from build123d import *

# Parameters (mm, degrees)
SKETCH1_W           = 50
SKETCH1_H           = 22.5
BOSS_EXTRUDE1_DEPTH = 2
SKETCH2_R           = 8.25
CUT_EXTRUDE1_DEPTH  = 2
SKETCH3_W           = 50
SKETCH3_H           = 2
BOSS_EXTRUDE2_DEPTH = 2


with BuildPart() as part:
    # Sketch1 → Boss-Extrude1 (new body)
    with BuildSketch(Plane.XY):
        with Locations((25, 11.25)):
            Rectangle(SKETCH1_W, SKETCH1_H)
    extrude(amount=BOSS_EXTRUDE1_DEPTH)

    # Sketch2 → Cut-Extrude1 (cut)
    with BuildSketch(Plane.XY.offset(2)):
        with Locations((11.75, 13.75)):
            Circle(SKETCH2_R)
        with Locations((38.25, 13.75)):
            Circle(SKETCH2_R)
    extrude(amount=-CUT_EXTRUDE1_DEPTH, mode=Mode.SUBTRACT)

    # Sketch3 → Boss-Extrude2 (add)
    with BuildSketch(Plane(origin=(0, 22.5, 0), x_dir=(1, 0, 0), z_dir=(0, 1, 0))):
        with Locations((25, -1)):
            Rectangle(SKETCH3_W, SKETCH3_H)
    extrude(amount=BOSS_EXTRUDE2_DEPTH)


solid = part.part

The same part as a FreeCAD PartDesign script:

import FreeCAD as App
import Part
import Sketcher
from FreeCAD import Vector


def add_polygon(sketch, points):
    """Adds a closed chain of lines whose ends are joined by coincident constraints."""
    first, n = sketch.GeometryCount, len(points)
    for a, b in zip(points, points[1:] + points[:1]):
        sketch.addGeometry(Part.LineSegment(App.Vector(*a, 0), App.Vector(*b, 0)), False)
    for i in range(n):
        sketch.addConstraint(Sketcher.Constraint("Coincident", first + i, 2, first + (i + 1) % n, 1))

doc = App.newDocument("Part")
body = doc.addObject("PartDesign::Body", "Body")

# Sketch on XY plane
sketch1 = body.newObject("Sketcher::SketchObject", "Sketch")
sketch1.AttachmentSupport = (doc.getObject("XY_Plane"), [""])
sketch1.MapMode = "FlatFace"
add_polygon(sketch1, [(0, 22), (0, 0), (50, 0), (50, 22)])  # lines 0-3
sketch1.addConstraint([
    Sketcher.Constraint("Vertical", 0),
    Sketcher.Constraint("Horizontal", 1),
    Sketcher.Constraint("Vertical", 2),
    Sketcher.Constraint("Horizontal", 3),
    Sketcher.Constraint("Coincident", 0, 2, -1, 1),
    Sketcher.Constraint("DistanceX", 1, 1, 1, 2, 50.0),
    Sketcher.Constraint("DistanceY", 0, 2, 0, 1, 22.5),
])
pad1 = body.newObject("PartDesign::Pad", "Pad")
pad1.Profile = sketch1
pad1.Length = 2

# Sketch on XY plane
sketch2 = body.newObject("Sketcher::SketchObject", "Sketch001")
sketch2.AttachmentSupport = (doc.getObject("XY_Plane"), [""])
sketch2.MapMode = "FlatFace"
sketch2.AttachmentOffset = App.Placement(Vector(0, 0, 2), App.Rotation())
sketch2.addGeometry([
    Part.Circle(Vector(12, 14, 0), Vector(0, 0, 1), 8),
    Part.Circle(Vector(38, 14, 0), Vector(0, 0, 1), 8),
], False)
sketch2.addConstraint([
    Sketcher.Constraint("Equal", 0, 1),
    Sketcher.Constraint("Horizontal", 0, 3, 1, 3),
    Sketcher.Constraint("Diameter", 0, 16.5),
    Sketcher.Constraint("DistanceX", 0, 3, 1, 3, 26.5),
    Sketcher.Constraint("DistanceX", -1, 1, 0, 3, 11.75),
    Sketcher.Constraint("DistanceY", -1, 1, 0, 3, 13.75),
])
pocket1 = body.newObject("PartDesign::Pocket", "Pocket")
pocket1.Profile = sketch2
pocket1.Length = 2

# Sketch on XZ plane
sketch3 = body.newObject("Sketcher::SketchObject", "Sketch002")
sketch3.AttachmentSupport = (doc.getObject("XZ_Plane"), [""])
sketch3.MapMode = "FlatFace"
sketch3.AttachmentOffset = App.Placement(Vector(0, 0, -22.5), App.Rotation())
add_polygon(sketch3, [(0, 0), (0, 2), (50, 2), (50, 0)])  # lines 0-3
sketch3.addConstraint([
    Sketcher.Constraint("Vertical", 0),
    Sketcher.Constraint("Horizontal", 1),
    Sketcher.Constraint("Vertical", 2),
    Sketcher.Constraint("Horizontal", 3),
    Sketcher.Constraint("Coincident", 3, 2, -1, 1),
    Sketcher.Constraint("DistanceX", 1, 1, 1, 2, 50.0),
    Sketcher.Constraint("DistanceY", 0, 1, 0, 2, 2.0),
])
pad2 = body.newObject("PartDesign::Pad", "Pad001")
pad2.Profile = sketch3
pad2.Length = 2
pad2.Reversed = True

doc.recompute()
